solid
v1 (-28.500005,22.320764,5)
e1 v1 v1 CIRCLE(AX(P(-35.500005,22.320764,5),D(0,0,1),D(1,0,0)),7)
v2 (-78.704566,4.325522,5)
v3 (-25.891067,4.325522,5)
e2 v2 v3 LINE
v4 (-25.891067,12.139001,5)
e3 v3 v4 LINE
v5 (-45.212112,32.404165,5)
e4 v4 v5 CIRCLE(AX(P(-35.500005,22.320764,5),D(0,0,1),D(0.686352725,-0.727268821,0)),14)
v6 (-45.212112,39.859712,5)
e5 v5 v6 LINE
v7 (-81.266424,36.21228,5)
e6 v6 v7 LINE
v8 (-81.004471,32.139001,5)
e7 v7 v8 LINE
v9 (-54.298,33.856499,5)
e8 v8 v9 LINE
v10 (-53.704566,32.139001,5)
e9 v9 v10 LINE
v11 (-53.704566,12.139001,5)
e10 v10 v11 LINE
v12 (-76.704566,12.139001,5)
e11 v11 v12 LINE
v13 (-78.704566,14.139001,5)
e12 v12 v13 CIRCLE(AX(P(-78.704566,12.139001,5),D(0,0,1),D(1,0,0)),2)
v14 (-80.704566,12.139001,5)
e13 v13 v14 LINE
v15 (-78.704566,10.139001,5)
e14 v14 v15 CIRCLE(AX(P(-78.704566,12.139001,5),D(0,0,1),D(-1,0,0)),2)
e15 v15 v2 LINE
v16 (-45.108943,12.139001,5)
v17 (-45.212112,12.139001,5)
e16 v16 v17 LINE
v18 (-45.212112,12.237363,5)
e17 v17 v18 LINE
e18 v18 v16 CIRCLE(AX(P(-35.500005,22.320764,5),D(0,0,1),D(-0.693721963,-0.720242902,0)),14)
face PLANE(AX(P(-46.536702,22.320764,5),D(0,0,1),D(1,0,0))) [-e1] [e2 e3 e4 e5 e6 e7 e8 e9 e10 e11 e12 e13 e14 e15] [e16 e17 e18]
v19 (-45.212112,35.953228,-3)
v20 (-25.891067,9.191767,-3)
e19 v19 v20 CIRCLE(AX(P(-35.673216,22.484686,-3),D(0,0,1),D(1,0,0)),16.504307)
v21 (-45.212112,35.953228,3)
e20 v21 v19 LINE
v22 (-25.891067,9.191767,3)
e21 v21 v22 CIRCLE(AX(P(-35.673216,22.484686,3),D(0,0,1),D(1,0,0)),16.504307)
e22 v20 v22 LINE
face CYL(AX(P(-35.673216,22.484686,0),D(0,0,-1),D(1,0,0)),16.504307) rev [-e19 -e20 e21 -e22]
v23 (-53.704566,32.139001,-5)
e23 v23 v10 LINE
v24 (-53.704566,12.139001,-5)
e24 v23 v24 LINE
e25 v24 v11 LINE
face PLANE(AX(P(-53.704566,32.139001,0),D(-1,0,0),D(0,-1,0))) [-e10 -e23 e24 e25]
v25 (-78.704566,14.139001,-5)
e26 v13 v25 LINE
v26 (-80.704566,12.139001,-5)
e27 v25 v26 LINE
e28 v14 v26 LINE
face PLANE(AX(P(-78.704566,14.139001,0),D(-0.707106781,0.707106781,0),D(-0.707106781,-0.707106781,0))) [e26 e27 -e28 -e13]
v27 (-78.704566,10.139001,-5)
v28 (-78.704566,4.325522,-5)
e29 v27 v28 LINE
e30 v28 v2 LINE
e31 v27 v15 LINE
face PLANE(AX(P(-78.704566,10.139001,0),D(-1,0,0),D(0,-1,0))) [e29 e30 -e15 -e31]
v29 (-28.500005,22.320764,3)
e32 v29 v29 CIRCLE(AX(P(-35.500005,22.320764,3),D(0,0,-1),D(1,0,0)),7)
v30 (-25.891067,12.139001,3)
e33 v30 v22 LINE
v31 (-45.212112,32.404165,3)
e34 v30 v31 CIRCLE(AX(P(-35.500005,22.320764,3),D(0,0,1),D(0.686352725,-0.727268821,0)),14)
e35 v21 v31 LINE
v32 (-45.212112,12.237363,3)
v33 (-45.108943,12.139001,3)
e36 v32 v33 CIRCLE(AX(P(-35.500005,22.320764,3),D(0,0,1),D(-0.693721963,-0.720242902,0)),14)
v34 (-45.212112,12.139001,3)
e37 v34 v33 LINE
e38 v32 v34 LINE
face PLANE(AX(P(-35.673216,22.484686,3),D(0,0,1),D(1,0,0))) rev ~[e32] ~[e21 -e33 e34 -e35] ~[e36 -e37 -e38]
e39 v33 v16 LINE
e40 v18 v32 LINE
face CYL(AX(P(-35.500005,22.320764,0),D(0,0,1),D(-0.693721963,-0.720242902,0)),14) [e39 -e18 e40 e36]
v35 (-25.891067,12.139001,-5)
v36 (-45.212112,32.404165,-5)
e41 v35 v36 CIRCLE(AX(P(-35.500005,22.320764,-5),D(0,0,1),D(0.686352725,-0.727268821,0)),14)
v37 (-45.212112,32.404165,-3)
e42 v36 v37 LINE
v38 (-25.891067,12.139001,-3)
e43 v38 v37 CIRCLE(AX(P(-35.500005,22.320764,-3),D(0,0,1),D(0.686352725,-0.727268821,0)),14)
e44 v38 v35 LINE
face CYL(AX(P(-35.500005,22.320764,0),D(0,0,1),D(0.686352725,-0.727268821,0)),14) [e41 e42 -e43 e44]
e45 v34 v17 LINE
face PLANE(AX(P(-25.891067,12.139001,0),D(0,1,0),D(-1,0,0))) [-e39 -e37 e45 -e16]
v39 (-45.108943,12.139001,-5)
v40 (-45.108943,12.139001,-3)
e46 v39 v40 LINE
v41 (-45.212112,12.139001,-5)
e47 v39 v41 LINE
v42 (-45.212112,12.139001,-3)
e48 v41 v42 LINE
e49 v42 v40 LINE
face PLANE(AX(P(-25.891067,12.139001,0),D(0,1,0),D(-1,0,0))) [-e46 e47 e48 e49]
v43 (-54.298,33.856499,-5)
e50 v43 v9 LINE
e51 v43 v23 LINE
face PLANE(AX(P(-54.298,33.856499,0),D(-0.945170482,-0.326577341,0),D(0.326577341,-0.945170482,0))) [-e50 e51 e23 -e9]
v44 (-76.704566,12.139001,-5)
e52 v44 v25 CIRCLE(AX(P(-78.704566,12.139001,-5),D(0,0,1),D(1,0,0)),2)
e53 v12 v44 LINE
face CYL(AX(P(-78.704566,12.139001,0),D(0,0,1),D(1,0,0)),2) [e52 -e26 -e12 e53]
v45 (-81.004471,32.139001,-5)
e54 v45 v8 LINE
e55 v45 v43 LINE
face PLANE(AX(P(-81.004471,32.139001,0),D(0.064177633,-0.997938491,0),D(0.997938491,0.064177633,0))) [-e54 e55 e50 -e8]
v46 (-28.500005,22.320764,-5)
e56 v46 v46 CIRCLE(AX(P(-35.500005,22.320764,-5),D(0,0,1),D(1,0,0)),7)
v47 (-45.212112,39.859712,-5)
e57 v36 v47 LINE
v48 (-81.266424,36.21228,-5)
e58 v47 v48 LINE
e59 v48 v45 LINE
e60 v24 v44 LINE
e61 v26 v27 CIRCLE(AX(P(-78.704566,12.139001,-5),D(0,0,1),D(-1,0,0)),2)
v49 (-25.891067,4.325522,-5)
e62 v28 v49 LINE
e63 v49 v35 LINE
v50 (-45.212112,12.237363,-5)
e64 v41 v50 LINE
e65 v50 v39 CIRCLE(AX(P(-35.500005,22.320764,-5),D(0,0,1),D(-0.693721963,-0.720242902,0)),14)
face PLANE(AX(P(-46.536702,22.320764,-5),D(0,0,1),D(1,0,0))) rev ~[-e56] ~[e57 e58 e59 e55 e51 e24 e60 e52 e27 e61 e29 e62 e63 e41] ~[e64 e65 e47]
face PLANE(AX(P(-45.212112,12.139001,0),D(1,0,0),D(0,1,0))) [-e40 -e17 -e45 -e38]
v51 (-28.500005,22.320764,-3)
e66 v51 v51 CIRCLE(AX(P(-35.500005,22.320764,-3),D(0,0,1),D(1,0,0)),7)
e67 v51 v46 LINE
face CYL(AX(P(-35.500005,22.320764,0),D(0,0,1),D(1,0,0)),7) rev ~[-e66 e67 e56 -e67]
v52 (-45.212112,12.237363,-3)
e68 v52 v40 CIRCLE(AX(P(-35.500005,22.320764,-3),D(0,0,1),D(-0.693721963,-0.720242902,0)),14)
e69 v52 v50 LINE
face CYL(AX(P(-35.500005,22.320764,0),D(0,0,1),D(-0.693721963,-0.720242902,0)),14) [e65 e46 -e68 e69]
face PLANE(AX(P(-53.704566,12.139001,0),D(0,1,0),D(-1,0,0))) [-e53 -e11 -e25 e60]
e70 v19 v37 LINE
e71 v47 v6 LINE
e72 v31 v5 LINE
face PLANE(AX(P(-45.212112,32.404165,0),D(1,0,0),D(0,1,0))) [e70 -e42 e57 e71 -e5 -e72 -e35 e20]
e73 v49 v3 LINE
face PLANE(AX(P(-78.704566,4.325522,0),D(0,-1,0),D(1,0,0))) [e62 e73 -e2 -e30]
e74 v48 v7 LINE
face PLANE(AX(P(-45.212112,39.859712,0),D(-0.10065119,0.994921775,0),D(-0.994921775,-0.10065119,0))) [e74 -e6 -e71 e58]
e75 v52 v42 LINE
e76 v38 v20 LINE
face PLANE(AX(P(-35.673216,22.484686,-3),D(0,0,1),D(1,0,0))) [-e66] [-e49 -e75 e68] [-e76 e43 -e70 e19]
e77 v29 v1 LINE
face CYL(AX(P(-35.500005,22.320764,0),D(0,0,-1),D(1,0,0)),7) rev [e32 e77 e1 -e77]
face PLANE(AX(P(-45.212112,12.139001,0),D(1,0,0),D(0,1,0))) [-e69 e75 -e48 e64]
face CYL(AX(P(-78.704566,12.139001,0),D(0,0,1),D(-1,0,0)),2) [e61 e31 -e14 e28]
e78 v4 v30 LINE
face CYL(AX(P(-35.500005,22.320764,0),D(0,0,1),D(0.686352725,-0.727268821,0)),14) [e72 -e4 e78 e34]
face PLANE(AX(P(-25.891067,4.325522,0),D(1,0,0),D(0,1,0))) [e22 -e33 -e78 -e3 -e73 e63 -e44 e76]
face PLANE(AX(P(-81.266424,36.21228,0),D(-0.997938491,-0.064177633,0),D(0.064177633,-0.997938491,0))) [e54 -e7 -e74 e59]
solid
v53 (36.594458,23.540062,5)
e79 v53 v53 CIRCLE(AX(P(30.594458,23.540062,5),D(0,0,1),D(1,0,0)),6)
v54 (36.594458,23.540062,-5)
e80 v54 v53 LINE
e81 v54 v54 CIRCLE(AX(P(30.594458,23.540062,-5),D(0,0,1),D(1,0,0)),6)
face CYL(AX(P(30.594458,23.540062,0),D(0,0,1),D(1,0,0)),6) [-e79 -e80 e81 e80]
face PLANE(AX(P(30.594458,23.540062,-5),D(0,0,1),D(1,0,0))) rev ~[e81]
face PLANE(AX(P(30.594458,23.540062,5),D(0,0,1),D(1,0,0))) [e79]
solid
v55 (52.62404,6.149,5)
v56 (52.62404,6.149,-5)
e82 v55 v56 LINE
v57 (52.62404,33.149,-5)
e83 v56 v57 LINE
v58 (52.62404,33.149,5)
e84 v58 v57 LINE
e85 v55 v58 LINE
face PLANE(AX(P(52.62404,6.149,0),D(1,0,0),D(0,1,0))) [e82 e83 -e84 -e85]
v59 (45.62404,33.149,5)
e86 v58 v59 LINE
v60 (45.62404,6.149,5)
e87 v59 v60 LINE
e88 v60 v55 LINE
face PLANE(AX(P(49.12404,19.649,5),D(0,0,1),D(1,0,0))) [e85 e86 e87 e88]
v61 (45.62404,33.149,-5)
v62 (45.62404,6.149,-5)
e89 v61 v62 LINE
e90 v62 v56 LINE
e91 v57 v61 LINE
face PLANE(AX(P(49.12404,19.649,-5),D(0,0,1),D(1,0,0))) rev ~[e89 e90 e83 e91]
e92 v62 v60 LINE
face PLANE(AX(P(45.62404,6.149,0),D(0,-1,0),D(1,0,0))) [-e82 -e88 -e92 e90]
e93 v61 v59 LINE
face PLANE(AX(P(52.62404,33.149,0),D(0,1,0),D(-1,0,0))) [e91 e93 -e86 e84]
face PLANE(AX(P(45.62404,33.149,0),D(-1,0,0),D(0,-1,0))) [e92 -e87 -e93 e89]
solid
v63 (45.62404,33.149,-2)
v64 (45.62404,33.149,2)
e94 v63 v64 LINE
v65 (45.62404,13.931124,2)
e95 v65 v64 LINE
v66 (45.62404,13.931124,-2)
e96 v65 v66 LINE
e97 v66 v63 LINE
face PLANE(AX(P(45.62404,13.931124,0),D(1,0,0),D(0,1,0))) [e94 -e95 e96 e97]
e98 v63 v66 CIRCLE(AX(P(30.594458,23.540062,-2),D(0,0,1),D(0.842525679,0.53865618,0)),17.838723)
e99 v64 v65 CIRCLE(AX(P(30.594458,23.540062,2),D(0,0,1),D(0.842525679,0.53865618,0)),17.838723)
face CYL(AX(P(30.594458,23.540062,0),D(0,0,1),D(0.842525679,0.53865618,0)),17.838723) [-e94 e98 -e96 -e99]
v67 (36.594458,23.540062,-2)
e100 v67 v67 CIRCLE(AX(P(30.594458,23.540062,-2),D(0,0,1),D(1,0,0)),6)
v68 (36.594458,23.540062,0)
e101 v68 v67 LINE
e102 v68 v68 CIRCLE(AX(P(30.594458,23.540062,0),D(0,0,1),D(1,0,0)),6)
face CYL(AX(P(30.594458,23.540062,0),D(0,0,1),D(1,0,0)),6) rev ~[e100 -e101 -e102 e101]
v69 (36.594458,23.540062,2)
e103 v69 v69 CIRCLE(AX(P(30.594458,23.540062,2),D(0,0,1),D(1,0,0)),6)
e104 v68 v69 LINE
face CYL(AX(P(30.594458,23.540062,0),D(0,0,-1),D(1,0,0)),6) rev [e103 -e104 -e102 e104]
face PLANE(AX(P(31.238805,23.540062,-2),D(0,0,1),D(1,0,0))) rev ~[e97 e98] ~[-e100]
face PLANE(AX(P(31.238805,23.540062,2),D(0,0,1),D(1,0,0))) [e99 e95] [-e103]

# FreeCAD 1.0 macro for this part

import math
import FreeCAD as App
import Part
import Sketcher

V = App.Vector

doc = App.newDocument("Part")
body = doc.addObject("PartDesign::Body", "Body")

sketch1 = body.newObject("Sketcher::SketchObject", "Sketch")
sketch1.AttachmentSupport = (doc.getObject("XY_Plane"), [""])
sketch1.MapMode = "FlatFace"
sketch1.addGeometry([
    Part.LineSegment(V(52.62404, 33.149, 0), V(45.62404, 33.149, 0)),
    Part.LineSegment(V(45.62404, 33.149, 0), V(45.62404, 6.149, 0)),
    Part.LineSegment(V(45.62404, 6.149, 0), V(52.62404, 6.149, 0)),
    Part.LineSegment(V(52.62404, 6.149, 0), V(52.62404, 33.149, 0)),
], False)
sketch1.addConstraint([
    Sketcher.Constraint("Coincident", 0, 2, 1, 1),
    Sketcher.Constraint("Coincident", 1, 2, 2, 1),
    Sketcher.Constraint("Coincident", 2, 2, 3, 1),
    Sketcher.Constraint("Coincident", 3, 2, 0, 1),
    Sketcher.Constraint("Horizontal", 0),
    Sketcher.Constraint("Vertical", 1),
    Sketcher.Constraint("Horizontal", 2),
    Sketcher.Constraint("Vertical", 3),
    Sketcher.Constraint("DistanceX", 0, 2, 0, 1, 7.0),
    Sketcher.Constraint("DistanceY", 1, 2, 1, 1, 27.0),
    Sketcher.Constraint("DistanceY", -1, 1, 0, 2, 33.149),
    Sketcher.Constraint("DistanceX", -1, 1, 0, 2, 45.62404),
])
pad1 = body.newObject("PartDesign::Pad", "Pad")
pad1.Profile = sketch1
pad1.Type = "TwoLengths"
pad1.Length = 5
pad1.Length2 = 5
body2 = doc.addObject("PartDesign::Body", "Body001")

sketch2 = body2.newObject("Sketcher::SketchObject", "Sketch001")
sketch2.AttachmentSupport = (doc.getObject("XY_Plane001"), [""])
sketch2.MapMode = "FlatFace"
sketch2.addGeometry(Part.Circle(V(30.594458, 23.540062, 0), V(0, 0, 1), 6), False)
sketch2.addConstraint([
    Sketcher.Constraint("Diameter", 0, 12.0),
    Sketcher.Constraint("DistanceX", -1, 1, 0, 3, 30.594458),
    Sketcher.Constraint("DistanceY", -1, 1, 0, 3, 23.540062),
])
pad2 = body2.newObject("PartDesign::Pad", "Pad001")
pad2.Profile = sketch2
pad2.Type = "TwoLengths"
pad2.Length = 5
pad2.Length2 = 5
body3 = doc.addObject("PartDesign::Body", "Body002")

sketch3 = body3.newObject("Sketcher::SketchObject", "Sketch002")
sketch3.AttachmentSupport = (doc.getObject("XY_Plane002"), [""])
sketch3.MapMode = "FlatFace"
sketch3.addGeometry([
    Part.LineSegment(V(45.62404, 13.931124, 0), V(45.62404, 33.149, 0)),
    Part.ArcOfCircle(Part.Circle(V(30.594458, 23.540062, 0), V(0, 0, 1), 17.838723), math.radians(32.592206), math.radians(327.407794)),
    Part.Circle(V(30.594458, 23.540062, 0), V(0, 0, 1), 6),
], False)
sketch3.addConstraint([
    Sketcher.Constraint("Coincident", 0, 1, 1, 2),
    Sketcher.Constraint("Coincident", 1, 1, 0, 2),
    Sketcher.Constraint("Vertical", 0),
    Sketcher.Constraint("Coincident", 2, 3, 1, 3),
    Sketcher.Constraint("Diameter", 2, 12.0),
    Sketcher.Constraint("DistanceY", -1, 1, 1, 1, 33.149),
    Sketcher.Constraint("Radius", 1, 17.838723),
    Sketcher.Constraint("DistanceY", 0, 1, 0, 2, 19.217876),
    Sketcher.Constraint("DistanceX", -1, 1, 1, 3, 30.594458),
])
pad3 = body3.newObject("PartDesign::Pad", "Pad002")
pad3.Profile = sketch3
pad3.Type = "TwoLengths"
pad3.Length = 2
pad3.Length2 = 2
body4 = doc.addObject("PartDesign::Body", "Body003")

sketch4 = body4.newObject("Sketcher::SketchObject", "Sketch003")
sketch4.AttachmentSupport = (doc.getObject("XY_Plane003"), [""])
sketch4.MapMode = "FlatFace"
sketch4.addGeometry([
    Part.ArcOfCircle(Part.Circle(V(-78.704566, 12.139001, 0), V(0, 0, 1), 2), math.radians(180), math.radians(270)),
    Part.LineSegment(V(-78.704566, 10.139001, 0), V(-78.704566, 4.325522, 0)),
    Part.LineSegment(V(-78.704566, 4.325522, 0), V(-25.891067, 4.325522, 0)),
    Part.LineSegment(V(-25.891067, 4.325522, 0), V(-25.891067, 12.139001, 0)),
    Part.LineSegment(V(-25.891067, 12.139001, 0), V(-45.212112, 12.139001, 0)),
    Part.LineSegment(V(-45.212112, 12.139001, 0), V(-45.212112, 12.237363, 0)),
    Part.ArcOfCircle(Part.Circle(V(-35.500005, 22.320764, 0), V(0, 0, 1), 14), math.radians(133.925461), math.radians(226.074539)),
    Part.LineSegment(V(-45.212112, 32.404165, 0), V(-45.212112, 39.859712, 0)),
    Part.LineSegment(V(-45.212112, 39.859712, 0), V(-81.266424, 36.21228, 0)),
    Part.LineSegment(V(-81.266424, 36.21228, 0), V(-81.004471, 32.139001, 0)),
    Part.LineSegment(V(-81.004471, 32.139001, 0), V(-54.298, 33.856499, 0)),
    Part.LineSegment(V(-54.298, 33.856499, 0), V(-53.704566, 32.139001, 0)),
    Part.LineSegment(V(-53.704566, 32.139001, 0), V(-53.704566, 12.139001, 0)),
    Part.LineSegment(V(-53.704566, 12.139001, 0), V(-76.704566, 12.139001, 0)),
    Part.ArcOfCircle(Part.Circle(V(-78.704566, 12.139001, 0), V(0, 0, 1), 2), math.radians(0), math.radians(90)),
    Part.LineSegment(V(-78.704566, 14.139001, 0), V(-80.704566, 12.139001, 0)),
], False)
sketch4.addConstraint([
    Sketcher.Constraint("Coincident", 0, 2, 1, 1),
    Sketcher.Constraint("Coincident", 1, 2, 2, 1),
    Sketcher.Constraint("Coincident", 2, 2, 3, 1),
    Sketcher.Constraint("Coincident", 3, 2, 4, 1),
    Sketcher.Constraint("Coincident", 4, 2, 5, 1),
    Sketcher.Constraint("Coincident", 5, 2, 6, 2),
    Sketcher.Constraint("Coincident", 6, 1, 7, 1),
    Sketcher.Constraint("Coincident", 7, 2, 8, 1),
    Sketcher.Constraint("Coincident", 8, 2, 9, 1),
    Sketcher.Constraint("Coincident", 9, 2, 10, 1),
    Sketcher.Constraint("Coincident", 10, 2, 11, 1),
    Sketcher.Constraint("Coincident", 11, 2, 12, 1),
    Sketcher.Constraint("Coincident", 12, 2, 13, 1),
    Sketcher.Constraint("Coincident", 13, 2, 14, 1),
    Sketcher.Constraint("Coincident", 14, 2, 15, 1),
    Sketcher.Constraint("Coincident", 15, 2, 0, 1),
    Sketcher.Constraint("Vertical", 1),
    Sketcher.Constraint("Horizontal", 2),
    Sketcher.Constraint("Vertical", 3),
    Sketcher.Constraint("Horizontal", 4),
    Sketcher.Constraint("Vertical", 5),
    Sketcher.Constraint("Vertical", 7),
    Sketcher.Constraint("Vertical", 12),
    Sketcher.Constraint("Horizontal", 13),
    Sketcher.Constraint("Coincident", 14, 3, 0, 3),
    Sketcher.Constraint("Equal", 0, 14),
    Sketcher.Constraint("Perpendicular", 9, 10),
    Sketcher.Constraint("Horizontal", 14, 3, 3, 2),
    Sketcher.Constraint("Horizontal", 9, 2, 11, 2),
    Sketcher.Constraint("Horizontal", 4, 2, 12, 2),
    Sketcher.Constraint("Horizontal", 13, 2, 15, 2),
    Sketcher.Constraint("Vertical", 14, 3, 0, 2),
    Sketcher.Constraint("Vertical", 5, 2, 6, 1),
    Sketcher.Constraint("Vertical", 1, 2, 14, 2),
    Sketcher.Constraint("Radius", 0, 2.0),
    Sketcher.Constraint("Radius", 6, 14.0),
    Sketcher.Constraint("DistanceX", 13, 2, 13, 1, 23.0),
    Sketcher.Constraint("DistanceY", 12, 2, 12, 1, 20.0),
    Sketcher.Constraint("DistanceX", 2, 1, 2, 2, 52.813499),
    Sketcher.Constraint("DistanceY", -1, 1, 0, 3, 12.139001),
    Sketcher.Constraint("DistanceX", 10, 2, -1, 1, 54.298),
    Sketcher.Constraint("DistanceY", 1, 2, 1, 1, 5.813479),
    Sketcher.Constraint("DistanceY", -1, 1, 10, 2, 33.856499),
    Sketcher.Constraint("DistanceY", 5, 2, 6, 3, 10.083401),
    Sketcher.Constraint("Distance", 8, 36.238338),
    Sketcher.Constraint("Distance", 10, 26.76164),
    Sketcher.Constraint("Distance", 11, 1.817131),
    Sketcher.Constraint("DistanceX", 4, 2, 4, 1, 19.321046),
    Sketcher.Constraint("DistanceY", 5, 1, 5, 2, 0.098363),
    Sketcher.Constraint("DistanceY", 7, 1, 7, 2, 7.455547),
])
pad4 = body4.newObject("PartDesign::Pad", "Pad003")
pad4.Profile = sketch4
pad4.Type = "TwoLengths"
pad4.Length = 5
pad4.Length2 = 5

sketch5 = body4.newObject("Sketcher::SketchObject", "Sketch004")
sketch5.AttachmentSupport = (doc.getObject("XY_Plane003"), [""])
sketch5.MapMode = "FlatFace"
sketch5.addGeometry([
    Part.ArcOfCircle(Part.Circle(V(-35.500005, 22.320764, 0), V(0, 0, 1), 14), math.radians(133.925461), math.radians(226.074539)),
    Part.ArcOfCircle(Part.Circle(V(-35.500005, 22.320764, 0), V(0, 0, 1), 14), math.radians(-133.925461), math.radians(-133.342084)),
    Part.LineSegment(V(-45.108943, 12.139001, 0), V(-25.891067, 12.139001, 0)),
    Part.ArcOfCircle(Part.Circle(V(-35.500005, 22.320764, 0), V(0, 0, 1), 14), math.radians(-46.657916), math.radians(133.925461)),
    Part.Circle(V(-35.500005, 22.320764, 0), V(0, 0, 1), 7),
], False)
sketch5.addConstraint([
    Sketcher.Constraint("Tangent", 0, 2, 1, 1),
    Sketcher.Constraint("Coincident", 1, 2, 2, 1),
    Sketcher.Constraint("Coincident", 2, 2, 3, 1),
    Sketcher.Constraint("Tangent", 3, 2, 0, 1),
    Sketcher.Constraint("Horizontal", 2),
    Sketcher.Constraint("Coincident", 4, 3, 0, 3),
    Sketcher.Constraint("Equal", 0, 1),
    Sketcher.Constraint("Equal", 1, 3),
    Sketcher.Constraint("Vertical", 0, 2, 3, 2),
    Sketcher.Constraint("Diameter", 4, 14.0),
    Sketcher.Constraint("Radius", 0, 14.0),
    Sketcher.Constraint("DistanceY", -1, 1, 1, 2, 12.139001),
    Sketcher.Constraint("DistanceY", 0, 2, 0, 3, 10.083401),
    Sketcher.Constraint("DistanceX", 2, 1, 2, 2, 19.217876),
    Sketcher.Constraint("DistanceX", 0, 3, -1, 1, 35.500005),
])
pad5 = body4.newObject("PartDesign::Pad", "Pad004")
pad5.Profile = sketch5
pad5.Type = "TwoLengths"
pad5.Length = 5
pad5.Length2 = 5

sketch6 = body4.newObject("Sketcher::SketchObject", "Sketch005")
sketch6.AttachmentSupport = (doc.getObject("XY_Plane003"), [""])
sketch6.MapMode = "FlatFace"
sketch6.addGeometry(Part.Circle(V(-35.673216, 22.484686, 0), V(0, 0, 1), 16.504307), False)
sketch6.addConstraint([
    Sketcher.Constraint("Diameter", 0, 33.008614),
    Sketcher.Constraint("DistanceX", 0, 3, -1, 1, 35.673216),
    Sketcher.Constraint("DistanceY", -1, 1, 0, 3, 22.484686),
])
pocket1 = body4.newObject("PartDesign::Pocket", "Pocket")
pocket1.Profile = sketch6
pocket1.Type = "TwoLengths"
pocket1.Length = 3
pocket1.Length2 = 3

doc.recompute()
